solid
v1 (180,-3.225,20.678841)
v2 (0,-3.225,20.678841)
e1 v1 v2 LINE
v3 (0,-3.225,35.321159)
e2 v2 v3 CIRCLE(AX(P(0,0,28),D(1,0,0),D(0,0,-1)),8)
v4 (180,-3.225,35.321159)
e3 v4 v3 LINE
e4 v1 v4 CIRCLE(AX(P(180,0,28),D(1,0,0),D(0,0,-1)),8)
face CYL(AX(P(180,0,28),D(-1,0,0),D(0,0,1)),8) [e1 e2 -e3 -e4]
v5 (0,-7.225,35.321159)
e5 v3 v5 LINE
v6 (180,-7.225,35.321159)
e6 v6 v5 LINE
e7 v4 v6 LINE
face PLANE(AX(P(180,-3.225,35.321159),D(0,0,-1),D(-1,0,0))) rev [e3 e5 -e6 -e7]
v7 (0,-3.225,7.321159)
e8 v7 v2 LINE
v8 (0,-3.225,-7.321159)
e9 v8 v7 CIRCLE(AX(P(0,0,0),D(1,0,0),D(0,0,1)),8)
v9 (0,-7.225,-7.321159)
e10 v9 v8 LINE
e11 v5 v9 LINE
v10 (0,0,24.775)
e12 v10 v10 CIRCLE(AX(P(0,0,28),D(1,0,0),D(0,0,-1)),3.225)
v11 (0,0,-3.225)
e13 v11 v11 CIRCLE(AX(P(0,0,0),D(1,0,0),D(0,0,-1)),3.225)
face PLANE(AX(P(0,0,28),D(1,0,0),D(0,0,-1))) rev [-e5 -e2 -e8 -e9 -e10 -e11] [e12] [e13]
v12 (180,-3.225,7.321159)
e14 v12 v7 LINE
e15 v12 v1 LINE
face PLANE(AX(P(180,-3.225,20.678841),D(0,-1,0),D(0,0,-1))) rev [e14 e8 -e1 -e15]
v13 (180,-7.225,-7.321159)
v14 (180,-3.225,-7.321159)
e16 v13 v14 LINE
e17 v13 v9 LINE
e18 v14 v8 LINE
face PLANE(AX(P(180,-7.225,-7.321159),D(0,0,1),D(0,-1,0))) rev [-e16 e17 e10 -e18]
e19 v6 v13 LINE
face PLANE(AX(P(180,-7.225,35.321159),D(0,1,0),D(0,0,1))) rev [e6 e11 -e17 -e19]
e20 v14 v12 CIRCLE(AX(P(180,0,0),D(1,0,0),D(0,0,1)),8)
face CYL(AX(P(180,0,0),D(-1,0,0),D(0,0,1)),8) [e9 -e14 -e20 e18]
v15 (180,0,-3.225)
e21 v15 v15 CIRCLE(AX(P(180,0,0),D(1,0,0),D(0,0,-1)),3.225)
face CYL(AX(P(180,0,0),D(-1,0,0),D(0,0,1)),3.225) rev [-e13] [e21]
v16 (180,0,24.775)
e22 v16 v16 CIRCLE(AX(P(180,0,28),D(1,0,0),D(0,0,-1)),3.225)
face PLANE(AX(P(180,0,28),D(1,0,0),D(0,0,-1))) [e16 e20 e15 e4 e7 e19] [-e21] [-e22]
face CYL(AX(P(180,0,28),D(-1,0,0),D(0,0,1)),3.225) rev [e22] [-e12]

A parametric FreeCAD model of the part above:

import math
import FreeCAD as App
import Part
import Sketcher
from FreeCAD import Vector

doc = App.newDocument("Part")
body = doc.addObject("PartDesign::Body", "Body")

# Sketch on YZ plane
sketch1 = body.newObject("Sketcher::SketchObject", "Sketch")
sketch1.AttachmentSupport = (doc.getObject("YZ_Plane"), [""])
sketch1.MapMode = "FlatFace"
sketch1.addGeometry(Part.LineSegment(Vector(-3.225, 7.321159, 0), Vector(-3.225, 20.678841, 0)), False)
sketch1.addGeometry(Part.ArcOfCircle(Part.Circle(Vector(0, 28, 0), Vector(0, 0, 1), 8), math.radians(-113.773683), math.radians(113.773683)), False)
sketch1.addGeometry(Part.LineSegment(Vector(-3.225, 35.321159, 0), Vector(-7.225, 35.321159, 0)), False)
sketch1.addGeometry(Part.LineSegment(Vector(-7.225, 35.321159, 0), Vector(-7.225, -7.321159, 0)), False)
sketch1.addGeometry(Part.LineSegment(Vector(-7.225, -7.321159, 0), Vector(-3.225, -7.321159, 0)), False)
sketch1.addGeometry(Part.ArcOfCircle(Part.Circle(Vector(0, 0, 0), Vector(0, 0, 1), 8), math.radians(-113.773683), math.radians(113.773683)), False)
sketch1.addGeometry(Part.Circle(Vector(0, 0, 0), Vector(0, 0, 1), 3.225), False)
sketch1.addGeometry(Part.Circle(Vector(0, 28, 0), Vector(0, 0, 1), 3.225), False)
sketch1.addConstraint(Sketcher.Constraint("Coincident", 0, 2, 1, 1))
sketch1.addConstraint(Sketcher.Constraint("Coincident", 1, 2, 2, 1))
sketch1.addConstraint(Sketcher.Constraint("Coincident", 2, 2, 3, 1))
sketch1.addConstraint(Sketcher.Constraint("Coincident", 3, 2, 4, 1))
sketch1.addConstraint(Sketcher.Constraint("Coincident", 4, 2, 5, 1))
sketch1.addConstraint(Sketcher.Constraint("Coincident", 5, 2, 0, 1))
sketch1.addConstraint(Sketcher.Constraint("Vertical", 0))
sketch1.addConstraint(Sketcher.Constraint("Horizontal", 2))
sketch1.addConstraint(Sketcher.Constraint("Vertical", 3))
sketch1.addConstraint(Sketcher.Constraint("Horizontal", 4))
sketch1.addConstraint(Sketcher.Constraint("Coincident", 5, 3, -1, 1))
sketch1.addConstraint(Sketcher.Constraint("Coincident", 6, 3, -1, 1))
sketch1.addConstraint(Sketcher.Constraint("Coincident", 7, 3, 1, 3))
sketch1.addConstraint(Sketcher.Constraint("Equal", 1, 5))
sketch1.addConstraint(Sketcher.Constraint("Equal", 6, 7))
sketch1.addConstraint(Sketcher.Constraint("PointOnObject", 1, 3, -2))
sketch1.addConstraint(Sketcher.Constraint("Vertical", 0, 2, 1, 2))
sketch1.addConstraint(Sketcher.Constraint("Vertical", 1, 2, 4, 2))
sketch1.addConstraint(Sketcher.Constraint("Radius", 1, 8.0))
sketch1.addConstraint(Sketcher.Constraint("Diameter", 6, 6.45))
sketch1.addConstraint(Sketcher.Constraint("DistanceX", 2, 2, 2, 1, 4.0))
sketch1.addConstraint(Sketcher.Constraint("DistanceY", -1, 1, 1, 3, 28.0))
sketch1.addConstraint(Sketcher.Constraint("DistanceX", 0, 2, -1, 1, 3.225))
pad1 = body.newObject("PartDesign::Pad", "Pad")
pad1.Profile = sketch1
pad1.Length = 180

doc.recompute()
